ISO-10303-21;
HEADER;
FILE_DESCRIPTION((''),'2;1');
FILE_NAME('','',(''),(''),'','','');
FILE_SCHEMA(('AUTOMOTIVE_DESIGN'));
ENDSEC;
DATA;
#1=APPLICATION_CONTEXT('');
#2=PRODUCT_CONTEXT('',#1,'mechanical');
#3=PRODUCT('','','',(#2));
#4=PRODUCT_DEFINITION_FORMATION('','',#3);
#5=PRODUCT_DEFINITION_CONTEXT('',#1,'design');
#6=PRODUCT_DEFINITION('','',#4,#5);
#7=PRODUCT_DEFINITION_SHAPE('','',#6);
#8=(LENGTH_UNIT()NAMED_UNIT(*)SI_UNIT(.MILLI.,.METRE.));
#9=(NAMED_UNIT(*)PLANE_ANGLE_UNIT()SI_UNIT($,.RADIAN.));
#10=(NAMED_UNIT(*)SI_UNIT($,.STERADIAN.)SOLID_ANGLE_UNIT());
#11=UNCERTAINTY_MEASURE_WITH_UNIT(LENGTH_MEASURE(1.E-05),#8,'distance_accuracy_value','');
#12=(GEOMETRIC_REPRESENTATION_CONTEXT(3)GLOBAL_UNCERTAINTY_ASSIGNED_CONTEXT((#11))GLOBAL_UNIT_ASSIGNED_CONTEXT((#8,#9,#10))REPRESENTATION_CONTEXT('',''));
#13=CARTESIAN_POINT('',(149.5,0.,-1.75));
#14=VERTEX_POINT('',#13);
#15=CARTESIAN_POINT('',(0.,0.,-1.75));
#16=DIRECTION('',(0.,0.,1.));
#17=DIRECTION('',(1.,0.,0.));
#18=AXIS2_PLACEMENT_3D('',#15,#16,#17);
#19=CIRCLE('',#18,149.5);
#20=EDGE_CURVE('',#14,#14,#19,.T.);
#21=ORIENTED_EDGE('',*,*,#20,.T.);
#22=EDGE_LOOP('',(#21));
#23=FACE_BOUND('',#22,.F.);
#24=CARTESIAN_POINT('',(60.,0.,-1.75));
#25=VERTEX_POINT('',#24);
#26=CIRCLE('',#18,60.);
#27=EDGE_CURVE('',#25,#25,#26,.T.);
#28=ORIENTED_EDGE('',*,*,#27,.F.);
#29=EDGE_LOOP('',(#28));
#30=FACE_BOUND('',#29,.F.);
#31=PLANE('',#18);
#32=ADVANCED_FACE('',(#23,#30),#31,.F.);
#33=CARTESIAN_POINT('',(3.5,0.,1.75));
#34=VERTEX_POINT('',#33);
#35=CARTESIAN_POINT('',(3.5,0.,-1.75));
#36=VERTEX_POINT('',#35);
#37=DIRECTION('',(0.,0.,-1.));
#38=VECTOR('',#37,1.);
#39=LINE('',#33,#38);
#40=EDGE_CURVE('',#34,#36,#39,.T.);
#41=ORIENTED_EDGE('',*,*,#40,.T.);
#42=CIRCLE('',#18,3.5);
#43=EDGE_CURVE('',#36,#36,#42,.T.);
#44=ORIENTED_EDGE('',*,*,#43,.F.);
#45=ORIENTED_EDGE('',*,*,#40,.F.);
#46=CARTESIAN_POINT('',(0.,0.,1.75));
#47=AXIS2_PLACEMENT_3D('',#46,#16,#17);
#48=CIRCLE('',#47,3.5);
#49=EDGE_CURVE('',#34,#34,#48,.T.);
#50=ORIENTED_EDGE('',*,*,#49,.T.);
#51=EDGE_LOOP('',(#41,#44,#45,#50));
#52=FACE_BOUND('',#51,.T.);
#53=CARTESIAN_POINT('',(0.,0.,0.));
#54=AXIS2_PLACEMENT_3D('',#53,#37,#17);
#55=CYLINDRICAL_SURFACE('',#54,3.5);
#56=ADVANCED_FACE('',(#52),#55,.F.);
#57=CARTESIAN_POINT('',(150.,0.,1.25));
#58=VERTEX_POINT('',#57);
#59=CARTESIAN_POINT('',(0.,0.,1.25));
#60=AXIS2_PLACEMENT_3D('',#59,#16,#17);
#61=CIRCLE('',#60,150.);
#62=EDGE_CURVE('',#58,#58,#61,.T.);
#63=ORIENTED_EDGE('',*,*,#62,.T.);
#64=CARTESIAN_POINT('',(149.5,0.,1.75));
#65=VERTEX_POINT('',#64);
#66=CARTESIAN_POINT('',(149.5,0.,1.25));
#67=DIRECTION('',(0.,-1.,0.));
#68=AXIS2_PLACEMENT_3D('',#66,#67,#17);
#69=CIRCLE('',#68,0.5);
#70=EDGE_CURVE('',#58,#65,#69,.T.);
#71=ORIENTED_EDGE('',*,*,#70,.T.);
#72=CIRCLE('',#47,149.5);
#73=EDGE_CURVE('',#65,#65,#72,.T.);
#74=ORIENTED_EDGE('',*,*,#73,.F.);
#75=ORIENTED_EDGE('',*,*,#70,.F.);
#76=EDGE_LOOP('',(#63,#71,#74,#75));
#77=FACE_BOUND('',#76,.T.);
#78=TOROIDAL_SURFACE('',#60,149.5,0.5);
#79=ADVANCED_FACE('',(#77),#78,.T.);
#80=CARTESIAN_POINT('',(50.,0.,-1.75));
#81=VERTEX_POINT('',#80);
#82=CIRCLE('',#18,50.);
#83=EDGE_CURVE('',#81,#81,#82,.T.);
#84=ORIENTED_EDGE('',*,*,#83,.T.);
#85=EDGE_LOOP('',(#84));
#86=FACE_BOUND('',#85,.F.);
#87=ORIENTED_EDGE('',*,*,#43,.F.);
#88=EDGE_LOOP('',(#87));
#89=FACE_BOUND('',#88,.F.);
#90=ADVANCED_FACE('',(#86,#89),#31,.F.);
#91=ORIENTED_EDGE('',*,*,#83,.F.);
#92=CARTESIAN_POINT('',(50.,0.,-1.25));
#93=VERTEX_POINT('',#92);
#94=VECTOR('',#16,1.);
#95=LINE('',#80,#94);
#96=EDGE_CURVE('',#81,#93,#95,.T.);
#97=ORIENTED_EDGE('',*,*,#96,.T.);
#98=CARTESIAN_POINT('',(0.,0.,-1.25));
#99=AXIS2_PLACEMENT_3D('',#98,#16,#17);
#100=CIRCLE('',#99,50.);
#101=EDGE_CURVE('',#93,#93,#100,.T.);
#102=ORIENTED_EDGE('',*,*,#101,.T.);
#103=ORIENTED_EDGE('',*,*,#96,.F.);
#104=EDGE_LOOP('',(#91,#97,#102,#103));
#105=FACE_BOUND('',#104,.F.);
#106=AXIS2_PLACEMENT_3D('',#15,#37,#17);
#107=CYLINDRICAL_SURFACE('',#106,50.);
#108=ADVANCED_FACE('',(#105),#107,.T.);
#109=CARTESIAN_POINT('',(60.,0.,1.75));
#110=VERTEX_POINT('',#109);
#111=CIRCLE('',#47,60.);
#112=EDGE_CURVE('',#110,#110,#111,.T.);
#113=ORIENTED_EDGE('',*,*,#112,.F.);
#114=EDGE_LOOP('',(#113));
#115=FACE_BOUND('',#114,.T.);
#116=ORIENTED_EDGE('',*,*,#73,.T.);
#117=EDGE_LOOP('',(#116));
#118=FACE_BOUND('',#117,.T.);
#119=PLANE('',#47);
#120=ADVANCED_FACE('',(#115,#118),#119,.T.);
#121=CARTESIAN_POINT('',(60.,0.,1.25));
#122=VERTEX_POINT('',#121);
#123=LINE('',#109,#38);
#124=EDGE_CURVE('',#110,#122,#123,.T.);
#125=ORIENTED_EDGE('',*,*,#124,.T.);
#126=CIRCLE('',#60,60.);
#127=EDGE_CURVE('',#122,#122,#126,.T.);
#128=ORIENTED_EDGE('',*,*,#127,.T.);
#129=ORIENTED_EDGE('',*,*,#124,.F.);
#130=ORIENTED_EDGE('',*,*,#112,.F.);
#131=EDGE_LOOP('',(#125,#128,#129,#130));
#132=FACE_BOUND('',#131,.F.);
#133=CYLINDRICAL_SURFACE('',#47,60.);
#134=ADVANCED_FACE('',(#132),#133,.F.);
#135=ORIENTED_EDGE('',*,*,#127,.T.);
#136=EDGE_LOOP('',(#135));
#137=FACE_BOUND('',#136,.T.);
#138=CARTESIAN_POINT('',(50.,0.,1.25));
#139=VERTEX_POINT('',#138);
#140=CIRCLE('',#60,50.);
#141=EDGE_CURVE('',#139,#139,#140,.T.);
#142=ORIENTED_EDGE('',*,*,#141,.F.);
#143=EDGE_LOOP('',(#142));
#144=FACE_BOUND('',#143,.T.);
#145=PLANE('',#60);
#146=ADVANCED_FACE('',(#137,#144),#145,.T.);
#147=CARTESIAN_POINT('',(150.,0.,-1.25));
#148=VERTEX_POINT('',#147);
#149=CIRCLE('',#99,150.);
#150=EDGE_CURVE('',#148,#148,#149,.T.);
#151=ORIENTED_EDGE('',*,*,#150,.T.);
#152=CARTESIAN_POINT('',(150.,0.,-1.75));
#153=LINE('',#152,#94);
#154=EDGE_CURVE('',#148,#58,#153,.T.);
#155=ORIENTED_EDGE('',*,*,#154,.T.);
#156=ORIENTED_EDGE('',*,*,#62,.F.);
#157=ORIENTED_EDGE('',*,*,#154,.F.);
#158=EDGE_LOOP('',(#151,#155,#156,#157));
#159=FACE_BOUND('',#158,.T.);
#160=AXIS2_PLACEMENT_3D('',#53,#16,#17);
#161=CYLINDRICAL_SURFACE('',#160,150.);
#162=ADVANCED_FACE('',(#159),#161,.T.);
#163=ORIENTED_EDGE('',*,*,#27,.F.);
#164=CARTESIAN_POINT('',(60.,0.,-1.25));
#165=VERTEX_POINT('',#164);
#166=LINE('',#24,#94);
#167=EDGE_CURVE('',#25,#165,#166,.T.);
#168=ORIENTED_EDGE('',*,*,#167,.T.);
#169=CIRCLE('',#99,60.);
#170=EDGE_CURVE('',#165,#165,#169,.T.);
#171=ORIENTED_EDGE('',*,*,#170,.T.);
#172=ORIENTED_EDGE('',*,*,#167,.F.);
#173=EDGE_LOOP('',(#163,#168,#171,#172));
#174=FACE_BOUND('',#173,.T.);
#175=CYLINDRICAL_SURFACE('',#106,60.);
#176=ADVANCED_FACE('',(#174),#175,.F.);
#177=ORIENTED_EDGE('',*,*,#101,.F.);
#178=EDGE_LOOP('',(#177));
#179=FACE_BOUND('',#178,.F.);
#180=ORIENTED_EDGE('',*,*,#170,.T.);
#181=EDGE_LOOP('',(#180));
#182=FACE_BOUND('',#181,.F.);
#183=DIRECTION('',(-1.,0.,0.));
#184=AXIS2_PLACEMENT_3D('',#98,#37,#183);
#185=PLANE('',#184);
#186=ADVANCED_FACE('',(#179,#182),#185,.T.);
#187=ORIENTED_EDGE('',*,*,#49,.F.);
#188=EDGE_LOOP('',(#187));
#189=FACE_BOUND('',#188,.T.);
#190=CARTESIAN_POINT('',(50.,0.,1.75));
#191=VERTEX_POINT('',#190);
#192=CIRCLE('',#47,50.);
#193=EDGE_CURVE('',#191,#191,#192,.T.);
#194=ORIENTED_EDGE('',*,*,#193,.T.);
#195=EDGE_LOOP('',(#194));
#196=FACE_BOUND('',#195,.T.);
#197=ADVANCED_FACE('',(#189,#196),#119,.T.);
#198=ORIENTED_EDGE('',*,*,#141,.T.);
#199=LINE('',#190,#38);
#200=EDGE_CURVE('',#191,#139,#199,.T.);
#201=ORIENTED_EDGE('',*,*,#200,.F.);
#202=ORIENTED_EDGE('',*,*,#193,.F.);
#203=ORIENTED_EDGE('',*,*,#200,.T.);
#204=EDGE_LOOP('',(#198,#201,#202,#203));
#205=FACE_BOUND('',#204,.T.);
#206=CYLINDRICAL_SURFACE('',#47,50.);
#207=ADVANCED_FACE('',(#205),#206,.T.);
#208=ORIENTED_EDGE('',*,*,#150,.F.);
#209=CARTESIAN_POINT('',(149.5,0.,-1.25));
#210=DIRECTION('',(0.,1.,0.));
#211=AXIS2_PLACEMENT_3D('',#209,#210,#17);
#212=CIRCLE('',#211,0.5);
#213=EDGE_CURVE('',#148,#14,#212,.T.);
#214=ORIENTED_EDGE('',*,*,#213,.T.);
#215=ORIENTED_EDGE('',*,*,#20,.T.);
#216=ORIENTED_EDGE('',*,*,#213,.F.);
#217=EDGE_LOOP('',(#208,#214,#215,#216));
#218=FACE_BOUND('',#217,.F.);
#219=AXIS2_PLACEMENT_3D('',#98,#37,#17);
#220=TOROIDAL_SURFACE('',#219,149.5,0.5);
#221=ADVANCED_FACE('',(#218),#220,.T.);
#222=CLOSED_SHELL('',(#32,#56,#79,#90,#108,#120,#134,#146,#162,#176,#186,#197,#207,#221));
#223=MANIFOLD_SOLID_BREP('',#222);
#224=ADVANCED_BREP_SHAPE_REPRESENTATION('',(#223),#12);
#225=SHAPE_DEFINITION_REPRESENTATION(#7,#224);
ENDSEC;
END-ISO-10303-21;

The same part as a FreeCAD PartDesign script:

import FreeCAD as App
import Part
import Sketcher
from FreeCAD import Vector


def edges_at(feature, points):
    """Names of the edges that pass closest to the given points."""
    edges = feature.Shape.Edges
    near = lambda p: min(range(len(edges)), key=lambda i: edges[i].distToShape(Part.Vertex(*p))[0])
    return sorted({f"Edge{near(p) + 1}" for p in points})

doc = App.newDocument("Part")
body = doc.addObject("PartDesign::Body", "Body")

sketch1 = body.newObject("Sketcher::SketchObject", "Sketch")
sketch1.AttachmentSupport = (doc.getObject("XY_Plane"), [""])
sketch1.MapMode = "FlatFace"
sketch1.addGeometry(Part.Circle(Vector(0, 0, 0), Vector(0, 0, 1), 150), False)
sketch1.addGeometry(Part.Circle(Vector(0, 0, 0), Vector(0, 0, 1), 3.5), False)
sketch1.addConstraint(Sketcher.Constraint("Coincident", 0, 3, -1, 1))
sketch1.addConstraint(Sketcher.Constraint("Coincident", 1, 3, -1, 1))
sketch1.addConstraint(Sketcher.Constraint("Diameter", 0, 300.0))
sketch1.addConstraint(Sketcher.Constraint("Diameter", 1, 7.0))
pad1 = body.newObject("PartDesign::Pad", "Pad")
pad1.Profile = sketch1
pad1.Length = 3.5
pad1.Midplane = True
doc.recompute()

fillet = body.newObject("PartDesign::Fillet", "Fillet")
fillet.Base = (pad1, edges_at(pad1, [(150, 0, 0), (-150, 0, -1.75), (-150, 0, 1.75)]))
fillet.Radius = 0.5

sketch2 = body.newObject("Sketcher::SketchObject", "Sketch001")
sketch2.AttachmentSupport = (doc.getObject("XY_Plane"), [""])
sketch2.MapMode = "FlatFace"
sketch2.AttachmentOffset = App.Placement(Vector(0, 0, 1.75), App.Rotation())
sketch2.addGeometry(Part.Circle(Vector(0, 0, 0), Vector(0, 0, 1), 60), False)
sketch2.addGeometry(Part.Circle(Vector(0, 0, 0), Vector(0, 0, 1), 50), False)
sketch2.addConstraint(Sketcher.Constraint("Coincident", 0, 3, -1, 1))
sketch2.addConstraint(Sketcher.Constraint("Coincident", 1, 3, -1, 1))
sketch2.addConstraint(Sketcher.Constraint("Diameter", 0, 120.0))
sketch2.addConstraint(Sketcher.Constraint("Diameter", 1, 100.0))
pocket1 = body.newObject("PartDesign::Pocket", "Pocket")
pocket1.Profile = sketch2
pocket1.Length = 0.5
doc.recompute()

mirrored = body.newObject("PartDesign::Mirrored", "Mirrored")
mirrored.Originals = [pocket1]
mirrored.MirrorPlane = (doc.getObject("XY_Plane"), [""])
body.Tip = mirrored

doc.recompute()
